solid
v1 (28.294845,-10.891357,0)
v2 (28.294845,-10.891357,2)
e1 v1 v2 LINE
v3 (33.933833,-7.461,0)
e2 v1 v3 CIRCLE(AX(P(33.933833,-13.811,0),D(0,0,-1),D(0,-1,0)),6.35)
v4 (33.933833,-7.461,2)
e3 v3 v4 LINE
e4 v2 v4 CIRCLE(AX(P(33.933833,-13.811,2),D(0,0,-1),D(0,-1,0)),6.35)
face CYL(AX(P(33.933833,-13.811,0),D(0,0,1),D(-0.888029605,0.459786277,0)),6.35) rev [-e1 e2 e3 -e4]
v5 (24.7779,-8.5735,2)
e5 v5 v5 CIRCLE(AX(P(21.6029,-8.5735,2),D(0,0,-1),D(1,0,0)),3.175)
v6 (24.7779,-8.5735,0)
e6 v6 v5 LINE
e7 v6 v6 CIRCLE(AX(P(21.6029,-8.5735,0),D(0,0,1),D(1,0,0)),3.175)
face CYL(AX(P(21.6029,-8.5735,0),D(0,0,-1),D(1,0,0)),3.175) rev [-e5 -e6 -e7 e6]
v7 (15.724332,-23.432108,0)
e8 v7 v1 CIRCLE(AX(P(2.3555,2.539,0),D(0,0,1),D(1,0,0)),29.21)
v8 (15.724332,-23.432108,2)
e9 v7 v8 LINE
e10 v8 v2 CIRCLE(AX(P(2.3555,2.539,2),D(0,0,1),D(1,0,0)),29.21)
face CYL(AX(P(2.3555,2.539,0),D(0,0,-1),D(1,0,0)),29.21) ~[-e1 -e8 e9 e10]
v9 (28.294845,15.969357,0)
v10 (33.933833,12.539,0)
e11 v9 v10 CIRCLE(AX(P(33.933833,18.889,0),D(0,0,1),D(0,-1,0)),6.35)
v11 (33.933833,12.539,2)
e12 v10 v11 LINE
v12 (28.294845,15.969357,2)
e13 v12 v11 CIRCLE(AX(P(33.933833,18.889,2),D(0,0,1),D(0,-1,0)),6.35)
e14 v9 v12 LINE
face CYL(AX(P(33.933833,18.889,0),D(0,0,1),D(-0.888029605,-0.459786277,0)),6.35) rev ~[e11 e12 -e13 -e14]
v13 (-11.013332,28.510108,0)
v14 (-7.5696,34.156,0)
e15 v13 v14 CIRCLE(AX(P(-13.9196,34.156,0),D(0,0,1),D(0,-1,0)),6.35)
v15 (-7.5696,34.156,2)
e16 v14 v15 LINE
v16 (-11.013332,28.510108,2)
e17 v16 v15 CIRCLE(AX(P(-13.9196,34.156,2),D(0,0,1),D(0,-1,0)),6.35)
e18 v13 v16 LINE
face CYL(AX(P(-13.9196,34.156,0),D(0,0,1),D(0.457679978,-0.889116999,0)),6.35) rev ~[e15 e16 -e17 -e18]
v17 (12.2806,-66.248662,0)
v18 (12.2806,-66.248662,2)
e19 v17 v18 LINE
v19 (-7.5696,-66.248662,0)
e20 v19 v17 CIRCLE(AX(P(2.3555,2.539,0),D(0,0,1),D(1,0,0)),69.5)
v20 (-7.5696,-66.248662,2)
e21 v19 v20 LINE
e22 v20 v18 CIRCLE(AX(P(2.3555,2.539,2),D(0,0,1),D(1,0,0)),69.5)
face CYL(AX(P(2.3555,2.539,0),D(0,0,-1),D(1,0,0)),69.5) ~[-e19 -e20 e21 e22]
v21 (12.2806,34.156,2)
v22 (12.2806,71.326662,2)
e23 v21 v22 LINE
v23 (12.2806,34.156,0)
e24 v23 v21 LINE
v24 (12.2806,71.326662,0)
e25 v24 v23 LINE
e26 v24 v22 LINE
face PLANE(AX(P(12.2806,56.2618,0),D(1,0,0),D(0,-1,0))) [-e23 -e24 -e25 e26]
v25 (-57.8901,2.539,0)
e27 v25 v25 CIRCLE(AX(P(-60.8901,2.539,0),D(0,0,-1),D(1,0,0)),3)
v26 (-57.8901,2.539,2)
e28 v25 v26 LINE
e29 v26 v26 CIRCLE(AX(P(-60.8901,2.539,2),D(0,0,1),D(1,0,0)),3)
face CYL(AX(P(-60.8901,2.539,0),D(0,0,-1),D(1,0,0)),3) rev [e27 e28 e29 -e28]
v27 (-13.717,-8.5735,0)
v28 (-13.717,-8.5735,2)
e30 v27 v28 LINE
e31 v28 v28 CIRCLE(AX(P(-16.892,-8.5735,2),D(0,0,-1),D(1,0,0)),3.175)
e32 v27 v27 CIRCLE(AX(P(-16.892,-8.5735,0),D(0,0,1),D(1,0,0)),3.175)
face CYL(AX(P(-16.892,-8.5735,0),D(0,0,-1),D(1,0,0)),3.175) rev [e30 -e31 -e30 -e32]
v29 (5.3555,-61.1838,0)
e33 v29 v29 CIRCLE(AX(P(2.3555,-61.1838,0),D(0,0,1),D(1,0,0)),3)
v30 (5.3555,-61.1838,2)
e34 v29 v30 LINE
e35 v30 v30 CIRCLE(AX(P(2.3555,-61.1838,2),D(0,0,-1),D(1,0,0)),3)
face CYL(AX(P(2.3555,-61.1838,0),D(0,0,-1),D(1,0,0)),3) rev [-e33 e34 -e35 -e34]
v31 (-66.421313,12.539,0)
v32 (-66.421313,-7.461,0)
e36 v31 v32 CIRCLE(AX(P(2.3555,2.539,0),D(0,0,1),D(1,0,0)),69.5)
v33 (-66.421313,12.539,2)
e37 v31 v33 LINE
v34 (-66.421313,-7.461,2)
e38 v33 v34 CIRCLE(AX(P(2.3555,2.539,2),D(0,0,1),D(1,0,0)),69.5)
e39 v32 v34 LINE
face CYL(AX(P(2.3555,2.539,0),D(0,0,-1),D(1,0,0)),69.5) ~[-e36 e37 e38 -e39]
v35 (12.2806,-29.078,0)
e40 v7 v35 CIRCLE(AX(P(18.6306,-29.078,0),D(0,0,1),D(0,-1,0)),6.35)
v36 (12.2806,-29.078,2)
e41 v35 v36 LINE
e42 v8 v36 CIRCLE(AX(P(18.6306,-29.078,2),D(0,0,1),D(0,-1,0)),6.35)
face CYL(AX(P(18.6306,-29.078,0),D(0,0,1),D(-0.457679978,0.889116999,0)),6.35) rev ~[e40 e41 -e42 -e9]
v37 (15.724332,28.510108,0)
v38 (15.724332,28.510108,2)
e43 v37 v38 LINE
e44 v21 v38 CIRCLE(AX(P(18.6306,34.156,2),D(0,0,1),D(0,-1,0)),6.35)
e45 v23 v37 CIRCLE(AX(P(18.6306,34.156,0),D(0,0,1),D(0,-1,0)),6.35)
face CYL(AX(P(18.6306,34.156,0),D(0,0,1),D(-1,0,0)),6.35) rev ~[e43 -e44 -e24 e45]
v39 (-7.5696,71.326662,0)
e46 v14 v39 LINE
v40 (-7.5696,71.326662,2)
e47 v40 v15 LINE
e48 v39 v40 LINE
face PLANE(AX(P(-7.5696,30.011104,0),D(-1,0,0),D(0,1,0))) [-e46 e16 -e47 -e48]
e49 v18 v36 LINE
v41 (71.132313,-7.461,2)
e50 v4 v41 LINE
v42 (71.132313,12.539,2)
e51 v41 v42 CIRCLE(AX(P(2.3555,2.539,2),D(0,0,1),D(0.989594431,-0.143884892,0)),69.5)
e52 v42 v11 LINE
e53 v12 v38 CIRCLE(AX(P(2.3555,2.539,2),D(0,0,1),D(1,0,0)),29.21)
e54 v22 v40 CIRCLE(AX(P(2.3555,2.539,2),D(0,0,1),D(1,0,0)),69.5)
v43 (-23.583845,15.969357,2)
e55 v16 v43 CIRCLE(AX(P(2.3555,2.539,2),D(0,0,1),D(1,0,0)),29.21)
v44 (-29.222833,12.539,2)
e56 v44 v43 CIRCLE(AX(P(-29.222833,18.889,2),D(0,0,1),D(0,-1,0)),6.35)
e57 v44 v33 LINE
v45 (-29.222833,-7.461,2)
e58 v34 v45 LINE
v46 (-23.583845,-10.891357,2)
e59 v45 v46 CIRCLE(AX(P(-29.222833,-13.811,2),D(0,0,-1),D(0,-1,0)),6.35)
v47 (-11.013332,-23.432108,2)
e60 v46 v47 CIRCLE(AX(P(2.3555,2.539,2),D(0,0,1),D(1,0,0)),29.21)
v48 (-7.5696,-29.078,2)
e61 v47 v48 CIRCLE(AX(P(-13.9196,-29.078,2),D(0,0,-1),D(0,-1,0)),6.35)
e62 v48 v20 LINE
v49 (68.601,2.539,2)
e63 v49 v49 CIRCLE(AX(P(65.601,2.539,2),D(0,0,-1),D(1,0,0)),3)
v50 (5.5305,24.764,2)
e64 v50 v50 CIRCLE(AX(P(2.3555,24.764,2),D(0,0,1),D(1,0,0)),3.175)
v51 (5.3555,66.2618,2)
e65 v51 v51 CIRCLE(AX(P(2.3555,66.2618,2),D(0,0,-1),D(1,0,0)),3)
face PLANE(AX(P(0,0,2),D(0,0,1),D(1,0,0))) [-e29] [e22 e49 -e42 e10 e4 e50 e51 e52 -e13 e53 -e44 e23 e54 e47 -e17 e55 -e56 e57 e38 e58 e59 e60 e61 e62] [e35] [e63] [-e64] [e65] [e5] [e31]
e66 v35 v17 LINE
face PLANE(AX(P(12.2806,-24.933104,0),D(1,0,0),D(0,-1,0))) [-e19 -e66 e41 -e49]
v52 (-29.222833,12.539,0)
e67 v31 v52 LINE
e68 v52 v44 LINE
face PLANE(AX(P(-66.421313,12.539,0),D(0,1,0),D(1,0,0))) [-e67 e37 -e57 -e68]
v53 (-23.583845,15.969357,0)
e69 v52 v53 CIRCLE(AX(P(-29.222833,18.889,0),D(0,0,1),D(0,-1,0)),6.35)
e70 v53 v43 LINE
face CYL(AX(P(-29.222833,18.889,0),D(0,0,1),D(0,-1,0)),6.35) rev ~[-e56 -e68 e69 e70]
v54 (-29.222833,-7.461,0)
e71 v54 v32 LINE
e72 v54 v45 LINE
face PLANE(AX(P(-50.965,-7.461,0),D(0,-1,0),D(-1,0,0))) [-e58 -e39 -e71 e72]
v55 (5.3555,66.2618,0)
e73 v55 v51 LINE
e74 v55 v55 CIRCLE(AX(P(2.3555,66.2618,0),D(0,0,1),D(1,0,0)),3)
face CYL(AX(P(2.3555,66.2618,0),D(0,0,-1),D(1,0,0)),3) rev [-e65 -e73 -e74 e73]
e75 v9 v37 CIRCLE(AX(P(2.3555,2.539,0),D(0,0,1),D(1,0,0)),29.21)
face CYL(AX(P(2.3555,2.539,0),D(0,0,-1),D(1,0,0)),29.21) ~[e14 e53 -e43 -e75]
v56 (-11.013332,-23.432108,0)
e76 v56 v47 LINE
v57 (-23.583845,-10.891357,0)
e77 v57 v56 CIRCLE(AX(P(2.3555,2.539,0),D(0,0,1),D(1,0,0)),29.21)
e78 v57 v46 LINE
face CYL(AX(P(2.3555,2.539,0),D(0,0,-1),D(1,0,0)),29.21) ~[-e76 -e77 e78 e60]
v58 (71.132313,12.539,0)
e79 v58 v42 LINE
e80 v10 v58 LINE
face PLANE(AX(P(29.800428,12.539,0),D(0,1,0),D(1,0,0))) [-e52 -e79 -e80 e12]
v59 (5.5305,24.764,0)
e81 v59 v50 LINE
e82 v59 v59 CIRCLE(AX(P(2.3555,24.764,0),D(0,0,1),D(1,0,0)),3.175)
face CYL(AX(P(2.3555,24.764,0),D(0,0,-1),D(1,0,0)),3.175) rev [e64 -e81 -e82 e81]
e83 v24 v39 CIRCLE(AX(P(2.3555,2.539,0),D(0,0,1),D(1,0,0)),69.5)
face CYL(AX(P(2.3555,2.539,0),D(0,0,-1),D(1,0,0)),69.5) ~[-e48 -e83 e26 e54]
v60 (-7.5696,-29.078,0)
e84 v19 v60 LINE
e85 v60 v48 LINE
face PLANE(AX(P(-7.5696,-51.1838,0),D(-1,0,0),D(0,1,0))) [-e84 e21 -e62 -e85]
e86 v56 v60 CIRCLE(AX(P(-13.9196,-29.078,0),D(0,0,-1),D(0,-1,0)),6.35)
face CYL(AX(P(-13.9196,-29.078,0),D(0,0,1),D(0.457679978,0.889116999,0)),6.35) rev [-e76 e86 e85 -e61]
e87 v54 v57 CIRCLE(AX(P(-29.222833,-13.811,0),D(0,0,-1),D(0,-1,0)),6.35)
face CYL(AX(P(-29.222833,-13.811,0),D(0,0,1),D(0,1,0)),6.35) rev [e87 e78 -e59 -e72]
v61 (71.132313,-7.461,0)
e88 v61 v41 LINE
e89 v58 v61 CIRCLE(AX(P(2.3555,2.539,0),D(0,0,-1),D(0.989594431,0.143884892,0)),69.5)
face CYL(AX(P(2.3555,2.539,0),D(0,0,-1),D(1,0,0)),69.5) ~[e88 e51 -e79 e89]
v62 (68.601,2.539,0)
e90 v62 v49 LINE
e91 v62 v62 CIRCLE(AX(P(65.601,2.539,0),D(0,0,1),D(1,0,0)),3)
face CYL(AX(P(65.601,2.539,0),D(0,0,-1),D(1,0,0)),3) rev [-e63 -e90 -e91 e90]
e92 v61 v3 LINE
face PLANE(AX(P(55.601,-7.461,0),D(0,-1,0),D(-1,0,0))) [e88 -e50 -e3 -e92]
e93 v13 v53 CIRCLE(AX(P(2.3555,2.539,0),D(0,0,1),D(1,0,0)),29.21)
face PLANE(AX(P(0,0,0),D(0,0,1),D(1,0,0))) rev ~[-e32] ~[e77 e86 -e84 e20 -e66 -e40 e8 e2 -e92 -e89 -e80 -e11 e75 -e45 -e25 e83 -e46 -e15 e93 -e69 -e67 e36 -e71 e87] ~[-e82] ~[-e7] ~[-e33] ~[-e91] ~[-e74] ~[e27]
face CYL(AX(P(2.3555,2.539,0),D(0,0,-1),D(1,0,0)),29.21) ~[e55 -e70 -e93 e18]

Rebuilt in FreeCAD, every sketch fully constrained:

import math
import FreeCAD as App
import Part
import Sketcher
Q = App.Units.Quantity


def edges_at(feature, points):
    """Names of the edges that pass closest to the given points."""
    edges = feature.Shape.Edges
    near = lambda p: min(range(len(edges)), key=lambda i: edges[i].distToShape(Part.Vertex(*p))[0])
    return sorted({f"Edge{near(p) + 1}" for p in points})

doc = App.newDocument("Part")
body = doc.addObject("PartDesign::Body", "Body")

# Sketch on XY plane
sketch1 = body.newObject("Sketcher::SketchObject", "Sketch")
sketch1.AttachmentSupport = (doc.getObject("XY_Plane"), [""])
sketch1.MapMode = "FlatFace"
sketch1.addGeometry([
    Part.ArcOfCircle(Part.Circle(App.Vector(2.3555, 2.539, 0), App.Vector(0, 0, 1), 69.5), math.radians(171.727289), math.radians(188.272711)),  # 0
    Part.LineSegment(App.Vector(-66.421313, -7.461, 0), App.Vector(-25.089428, -7.461, 0)),  # 1
    Part.ArcOfCircle(Part.Circle(App.Vector(2.3555, 2.539, 0), App.Vector(0, 0, 1), 29.21), math.radians(-159.979977), math.radians(-109.863734)),  # 2
    Part.LineSegment(App.Vector(-7.5696, -24.933104, 0), App.Vector(-7.5696, -66.248662, 0)),  # 3
    Part.ArcOfCircle(Part.Circle(App.Vector(2.3555, 2.539, 0), App.Vector(0, 0, 1), 69.5), math.radians(-98.210319), math.radians(-81.789681)),  # 4
    Part.LineSegment(App.Vector(12.2806, -66.248662, 0), App.Vector(12.2806, -24.933104, 0)),  # 5
    Part.ArcOfCircle(Part.Circle(App.Vector(2.3555, 2.539, 0), App.Vector(0, 0, 1), 29.21), math.radians(-70.136266), math.radians(-20.020023)),  # 6
    Part.LineSegment(App.Vector(29.800428, -7.461, 0), App.Vector(71.132313, -7.461, 0)),  # 7
    Part.ArcOfCircle(Part.Circle(App.Vector(2.3555, 2.539, 0), App.Vector(0, 0, 1), 69.5), math.radians(-8.272711), math.radians(8.272711)),  # 8
    Part.LineSegment(App.Vector(71.132313, 12.539, 0), App.Vector(29.800428, 12.539, 0)),  # 9
    Part.ArcOfCircle(Part.Circle(App.Vector(2.3555, 2.539, 0), App.Vector(0, 0, 1), 29.21), math.radians(20.020023), math.radians(70.136266)),  # 10
    Part.LineSegment(App.Vector(12.2806, 30.011104, 0), App.Vector(12.2806, 71.326662, 0)),  # 11
    Part.ArcOfCircle(Part.Circle(App.Vector(2.3555, 2.539, 0), App.Vector(0, 0, 1), 69.5), math.radians(81.789681), math.radians(98.210319)),  # 12
    Part.LineSegment(App.Vector(-7.5696, 71.326662, 0), App.Vector(-7.5696, 30.011104, 0)),  # 13
    Part.ArcOfCircle(Part.Circle(App.Vector(2.3555, 2.539, 0), App.Vector(0, 0, 1), 29.21), math.radians(109.863734), math.radians(159.979977)),  # 14
    Part.LineSegment(App.Vector(-25.089428, 12.539, 0), App.Vector(-66.421313, 12.539, 0)),  # 15
    Part.Circle(App.Vector(-60.8901, 2.539, 0), App.Vector(0, 0, 1), 3),  # 16
    Part.Circle(App.Vector(-16.892, -8.5735, 0), App.Vector(0, 0, 1), 3.175),  # 17
    Part.Circle(App.Vector(2.3555, 24.764, 0), App.Vector(0, 0, 1), 3.175),  # 18
    Part.Circle(App.Vector(21.6029, -8.5735, 0), App.Vector(0, 0, 1), 3.175),  # 19
    Part.Circle(App.Vector(2.3555, 66.2618, 0), App.Vector(0, 0, 1), 3),  # 20
    Part.Circle(App.Vector(65.601, 2.539, 0), App.Vector(0, 0, 1), 3),  # 21
    Part.Circle(App.Vector(2.3555, -61.1838, 0), App.Vector(0, 0, 1), 3),  # 22
], False)
sketch1.addConstraint([
    Sketcher.Constraint("Coincident", 0, 2, 1, 1),
    Sketcher.Constraint("Coincident", 1, 2, 2, 1),
    Sketcher.Constraint("Coincident", 2, 2, 3, 1),
    Sketcher.Constraint("Coincident", 3, 2, 4, 1),
    Sketcher.Constraint("Coincident", 4, 2, 5, 1),
    Sketcher.Constraint("Coincident", 5, 2, 6, 1),
    Sketcher.Constraint("Coincident", 6, 2, 7, 1),
    Sketcher.Constraint("Coincident", 7, 2, 8, 1),
    Sketcher.Constraint("Coincident", 8, 2, 9, 1),
    Sketcher.Constraint("Coincident", 9, 2, 10, 1),
    Sketcher.Constraint("Coincident", 10, 2, 11, 1),
    Sketcher.Constraint("Coincident", 11, 2, 12, 1),
    Sketcher.Constraint("Coincident", 12, 2, 13, 1),
    Sketcher.Constraint("Coincident", 13, 2, 14, 1),
    Sketcher.Constraint("Coincident", 14, 2, 15, 1),
    Sketcher.Constraint("Coincident", 15, 2, 0, 1),
    Sketcher.Constraint("Horizontal", 1),
    Sketcher.Constraint("Vertical", 3),
    Sketcher.Constraint("Vertical", 5),
    Sketcher.Constraint("Horizontal", 7),
    Sketcher.Constraint("Horizontal", 9),
    Sketcher.Constraint("Vertical", 11),
    Sketcher.Constraint("Vertical", 13),
    Sketcher.Constraint("Horizontal", 15),
    Sketcher.Constraint("Coincident", 2, 3, 0, 3),
    Sketcher.Constraint("Coincident", 4, 3, 0, 3),
    Sketcher.Constraint("Coincident", 6, 3, 0, 3),
    Sketcher.Constraint("Coincident", 8, 3, 0, 3),
    Sketcher.Constraint("Coincident", 10, 3, 0, 3),
    Sketcher.Constraint("Coincident", 12, 3, 0, 3),
    Sketcher.Constraint("Coincident", 14, 3, 0, 3),
    Sketcher.Constraint("Equal", 0, 4),
    Sketcher.Constraint("Equal", 2, 6),
    Sketcher.Constraint("Equal", 4, 8),
    Sketcher.Constraint("Equal", 6, 10),
    Sketcher.Constraint("Equal", 8, 12),
    Sketcher.Constraint("Equal", 10, 14),
    Sketcher.Constraint("Equal", 17, 18),
    Sketcher.Constraint("Equal", 18, 19),
    Sketcher.Constraint("Equal", 16, 20),
    Sketcher.Constraint("Equal", 20, 21),
    Sketcher.Constraint("Equal", 21, 22),
    Sketcher.Constraint("Horizontal", 14, 3, 16, 3),
    Sketcher.Constraint("Horizontal", 17, 3, 19, 3),
    Sketcher.Constraint("Horizontal", 16, 3, 21, 3),
    Sketcher.Constraint("Horizontal", 3, 2, 4, 2),
    Sketcher.Constraint("Horizontal", 1, 2, 6, 2),
    Sketcher.Constraint("Horizontal", 11, 2, 12, 2),
    Sketcher.Constraint("Horizontal", 9, 2, 14, 2),
    Sketcher.Constraint("Vertical", 14, 3, 18, 3),
    Sketcher.Constraint("Vertical", 18, 3, 20, 3),
    Sketcher.Constraint("Vertical", 20, 3, 22, 3),
    Sketcher.Constraint("Vertical", 7, 2, 8, 2),
    Sketcher.Constraint("Vertical", 5, 2, 10, 2),
    Sketcher.Constraint("Diameter", 16, Q("6 mm")),
    Sketcher.Constraint("Radius", 0, Q("69.5 mm")),
    Sketcher.Constraint("Diameter", 17, Q("6.35 mm")),
    Sketcher.Constraint("Radius", 2, Q("29.21 mm")),
    Sketcher.Constraint("DistanceY", 0, 2, 16, 3, Q("10 mm")),
    Sketcher.Constraint("DistanceY", 0, 3, 18, 3, Q("22.225 mm")),
    Sketcher.Constraint("DistanceX", 16, 3, -1, 1, Q("60.89 mm")),
    Sketcher.Constraint("DistanceY", 3, 2, 3, 1, Q("41.3156 mm")),
    Sketcher.Constraint("DistanceY", -1, 1, 0, 3, Q("2.539 mm")),
    Sketcher.Constraint("DistanceX", 17, 3, -1, 1, Q("16.892 mm")),
    Sketcher.Constraint("DistanceX", -1, 1, 19, 3, Q("21.603 mm")),
    Sketcher.Constraint("DistanceX", -1, 1, 21, 3, Q("65.601 mm")),
    Sketcher.Constraint("DistanceX", -1, 1, 0, 3, Q("2.3555 mm")),
    Sketcher.Constraint("DistanceY", 17, 3, -1, 1, Q("8.5735 mm")),
    Sketcher.Constraint("DistanceY", -1, 1, 20, 3, Q("66.2618 mm")),
    Sketcher.Constraint("DistanceY", 22, 3, -1, 1, Q("61.1838 mm")),
])
pad1 = body.newObject("PartDesign::Pad", "Pad")
pad1.Profile = sketch1
pad1.Length = 2
doc.recompute()

fillet = body.newObject("PartDesign::Fillet", "Fillet")
fillet.Base = (pad1, edges_at(pad1, [
    (29.8, 12.539, 1),
    (12.281, 30.011, 1),
    (-25.09, 12.539, 1),
    (-7.57, 30.011, 1),
    (-7.57, -24.933, 1),
    (-25.09, -7.461, 1),
    (12.281, -24.933, 1),
    (29.8, -7.461, 1),
]))
fillet.Radius = 6.35

doc.recompute()
